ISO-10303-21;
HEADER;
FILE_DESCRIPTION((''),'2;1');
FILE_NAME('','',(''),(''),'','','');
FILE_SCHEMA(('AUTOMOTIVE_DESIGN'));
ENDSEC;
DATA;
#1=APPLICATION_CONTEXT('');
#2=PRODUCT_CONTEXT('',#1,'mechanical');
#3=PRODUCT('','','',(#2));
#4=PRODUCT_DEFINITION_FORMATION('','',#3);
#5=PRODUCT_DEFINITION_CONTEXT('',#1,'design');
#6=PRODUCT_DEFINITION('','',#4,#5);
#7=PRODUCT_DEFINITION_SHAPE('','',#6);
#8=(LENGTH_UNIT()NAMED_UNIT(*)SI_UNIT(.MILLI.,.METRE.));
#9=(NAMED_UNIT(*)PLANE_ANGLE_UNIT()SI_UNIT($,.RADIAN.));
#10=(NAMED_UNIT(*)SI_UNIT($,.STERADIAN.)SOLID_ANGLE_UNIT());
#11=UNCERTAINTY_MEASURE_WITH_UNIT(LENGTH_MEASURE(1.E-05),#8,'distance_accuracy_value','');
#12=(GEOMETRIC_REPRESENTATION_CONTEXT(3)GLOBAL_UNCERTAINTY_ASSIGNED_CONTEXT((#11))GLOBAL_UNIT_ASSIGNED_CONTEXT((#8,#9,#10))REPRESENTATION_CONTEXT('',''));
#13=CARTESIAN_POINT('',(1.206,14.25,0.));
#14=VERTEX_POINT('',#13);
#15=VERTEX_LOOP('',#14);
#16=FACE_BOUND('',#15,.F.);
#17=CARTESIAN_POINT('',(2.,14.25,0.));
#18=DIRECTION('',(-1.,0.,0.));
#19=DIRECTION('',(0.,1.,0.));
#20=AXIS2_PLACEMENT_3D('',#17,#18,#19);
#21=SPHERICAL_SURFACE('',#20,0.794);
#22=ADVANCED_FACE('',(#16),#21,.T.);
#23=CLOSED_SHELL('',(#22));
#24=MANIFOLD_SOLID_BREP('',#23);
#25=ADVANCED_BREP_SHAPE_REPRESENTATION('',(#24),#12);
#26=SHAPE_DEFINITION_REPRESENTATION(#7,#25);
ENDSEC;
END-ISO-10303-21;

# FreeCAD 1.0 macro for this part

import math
import FreeCAD as App
import Part
import Sketcher
from FreeCAD import Vector
Q = App.Units.Quantity

doc = App.newDocument("Part")
body = doc.addObject("PartDesign::Body", "Body")

# Sketch on XY plane
sketch1 = body.newObject("Sketcher::SketchObject", "Sketch")
sketch1.AttachmentSupport = (doc.getObject("XY_Plane"), [""])
sketch1.MapMode = "FlatFace"
sketch1.addGeometry([
    Part.LineSegment(Vector(1.2, 14.2, 0), Vector(2.8, 14.2, 0)),
    Part.ArcOfCircle(Part.Circle(Vector(2, 14.2, 0), Vector(0, 0, 1), 0.8), math.radians(0), math.radians(180)),
], False)
sketch1.addGeometry(Part.LineSegment(Vector(1.2, 14.2, 0), Vector(2.8, 14.2, 0)), True)  # axis
sketch1.addConstraint([
    Sketcher.Constraint("Coincident", 0, 1, 1, 2),
    Sketcher.Constraint("Coincident", 1, 1, 0, 2),
    Sketcher.Constraint("Horizontal", 0),
    Sketcher.Constraint("Horizontal", 2),
    Sketcher.Constraint("Coincident", 2, 1, 0, 1),
    Sketcher.Constraint("Horizontal", 1, 3, 0, 1),
    Sketcher.Constraint("Equal", 0, 2),
    Sketcher.Constraint("DistanceX", -1, 1, 1, 3, Q("2 mm")),
    Sketcher.Constraint("Radius", 1, Q("0.794 mm")),
    Sketcher.Constraint("DistanceY", -1, 1, 1, 3, Q("14.25 mm")),
])
revolution = body.newObject("PartDesign::Revolution", "Revolution")
revolution.Profile = sketch1
revolution.ReferenceAxis = (sketch1, ["Axis0"])
revolution.Angle = 360

doc.recompute()
